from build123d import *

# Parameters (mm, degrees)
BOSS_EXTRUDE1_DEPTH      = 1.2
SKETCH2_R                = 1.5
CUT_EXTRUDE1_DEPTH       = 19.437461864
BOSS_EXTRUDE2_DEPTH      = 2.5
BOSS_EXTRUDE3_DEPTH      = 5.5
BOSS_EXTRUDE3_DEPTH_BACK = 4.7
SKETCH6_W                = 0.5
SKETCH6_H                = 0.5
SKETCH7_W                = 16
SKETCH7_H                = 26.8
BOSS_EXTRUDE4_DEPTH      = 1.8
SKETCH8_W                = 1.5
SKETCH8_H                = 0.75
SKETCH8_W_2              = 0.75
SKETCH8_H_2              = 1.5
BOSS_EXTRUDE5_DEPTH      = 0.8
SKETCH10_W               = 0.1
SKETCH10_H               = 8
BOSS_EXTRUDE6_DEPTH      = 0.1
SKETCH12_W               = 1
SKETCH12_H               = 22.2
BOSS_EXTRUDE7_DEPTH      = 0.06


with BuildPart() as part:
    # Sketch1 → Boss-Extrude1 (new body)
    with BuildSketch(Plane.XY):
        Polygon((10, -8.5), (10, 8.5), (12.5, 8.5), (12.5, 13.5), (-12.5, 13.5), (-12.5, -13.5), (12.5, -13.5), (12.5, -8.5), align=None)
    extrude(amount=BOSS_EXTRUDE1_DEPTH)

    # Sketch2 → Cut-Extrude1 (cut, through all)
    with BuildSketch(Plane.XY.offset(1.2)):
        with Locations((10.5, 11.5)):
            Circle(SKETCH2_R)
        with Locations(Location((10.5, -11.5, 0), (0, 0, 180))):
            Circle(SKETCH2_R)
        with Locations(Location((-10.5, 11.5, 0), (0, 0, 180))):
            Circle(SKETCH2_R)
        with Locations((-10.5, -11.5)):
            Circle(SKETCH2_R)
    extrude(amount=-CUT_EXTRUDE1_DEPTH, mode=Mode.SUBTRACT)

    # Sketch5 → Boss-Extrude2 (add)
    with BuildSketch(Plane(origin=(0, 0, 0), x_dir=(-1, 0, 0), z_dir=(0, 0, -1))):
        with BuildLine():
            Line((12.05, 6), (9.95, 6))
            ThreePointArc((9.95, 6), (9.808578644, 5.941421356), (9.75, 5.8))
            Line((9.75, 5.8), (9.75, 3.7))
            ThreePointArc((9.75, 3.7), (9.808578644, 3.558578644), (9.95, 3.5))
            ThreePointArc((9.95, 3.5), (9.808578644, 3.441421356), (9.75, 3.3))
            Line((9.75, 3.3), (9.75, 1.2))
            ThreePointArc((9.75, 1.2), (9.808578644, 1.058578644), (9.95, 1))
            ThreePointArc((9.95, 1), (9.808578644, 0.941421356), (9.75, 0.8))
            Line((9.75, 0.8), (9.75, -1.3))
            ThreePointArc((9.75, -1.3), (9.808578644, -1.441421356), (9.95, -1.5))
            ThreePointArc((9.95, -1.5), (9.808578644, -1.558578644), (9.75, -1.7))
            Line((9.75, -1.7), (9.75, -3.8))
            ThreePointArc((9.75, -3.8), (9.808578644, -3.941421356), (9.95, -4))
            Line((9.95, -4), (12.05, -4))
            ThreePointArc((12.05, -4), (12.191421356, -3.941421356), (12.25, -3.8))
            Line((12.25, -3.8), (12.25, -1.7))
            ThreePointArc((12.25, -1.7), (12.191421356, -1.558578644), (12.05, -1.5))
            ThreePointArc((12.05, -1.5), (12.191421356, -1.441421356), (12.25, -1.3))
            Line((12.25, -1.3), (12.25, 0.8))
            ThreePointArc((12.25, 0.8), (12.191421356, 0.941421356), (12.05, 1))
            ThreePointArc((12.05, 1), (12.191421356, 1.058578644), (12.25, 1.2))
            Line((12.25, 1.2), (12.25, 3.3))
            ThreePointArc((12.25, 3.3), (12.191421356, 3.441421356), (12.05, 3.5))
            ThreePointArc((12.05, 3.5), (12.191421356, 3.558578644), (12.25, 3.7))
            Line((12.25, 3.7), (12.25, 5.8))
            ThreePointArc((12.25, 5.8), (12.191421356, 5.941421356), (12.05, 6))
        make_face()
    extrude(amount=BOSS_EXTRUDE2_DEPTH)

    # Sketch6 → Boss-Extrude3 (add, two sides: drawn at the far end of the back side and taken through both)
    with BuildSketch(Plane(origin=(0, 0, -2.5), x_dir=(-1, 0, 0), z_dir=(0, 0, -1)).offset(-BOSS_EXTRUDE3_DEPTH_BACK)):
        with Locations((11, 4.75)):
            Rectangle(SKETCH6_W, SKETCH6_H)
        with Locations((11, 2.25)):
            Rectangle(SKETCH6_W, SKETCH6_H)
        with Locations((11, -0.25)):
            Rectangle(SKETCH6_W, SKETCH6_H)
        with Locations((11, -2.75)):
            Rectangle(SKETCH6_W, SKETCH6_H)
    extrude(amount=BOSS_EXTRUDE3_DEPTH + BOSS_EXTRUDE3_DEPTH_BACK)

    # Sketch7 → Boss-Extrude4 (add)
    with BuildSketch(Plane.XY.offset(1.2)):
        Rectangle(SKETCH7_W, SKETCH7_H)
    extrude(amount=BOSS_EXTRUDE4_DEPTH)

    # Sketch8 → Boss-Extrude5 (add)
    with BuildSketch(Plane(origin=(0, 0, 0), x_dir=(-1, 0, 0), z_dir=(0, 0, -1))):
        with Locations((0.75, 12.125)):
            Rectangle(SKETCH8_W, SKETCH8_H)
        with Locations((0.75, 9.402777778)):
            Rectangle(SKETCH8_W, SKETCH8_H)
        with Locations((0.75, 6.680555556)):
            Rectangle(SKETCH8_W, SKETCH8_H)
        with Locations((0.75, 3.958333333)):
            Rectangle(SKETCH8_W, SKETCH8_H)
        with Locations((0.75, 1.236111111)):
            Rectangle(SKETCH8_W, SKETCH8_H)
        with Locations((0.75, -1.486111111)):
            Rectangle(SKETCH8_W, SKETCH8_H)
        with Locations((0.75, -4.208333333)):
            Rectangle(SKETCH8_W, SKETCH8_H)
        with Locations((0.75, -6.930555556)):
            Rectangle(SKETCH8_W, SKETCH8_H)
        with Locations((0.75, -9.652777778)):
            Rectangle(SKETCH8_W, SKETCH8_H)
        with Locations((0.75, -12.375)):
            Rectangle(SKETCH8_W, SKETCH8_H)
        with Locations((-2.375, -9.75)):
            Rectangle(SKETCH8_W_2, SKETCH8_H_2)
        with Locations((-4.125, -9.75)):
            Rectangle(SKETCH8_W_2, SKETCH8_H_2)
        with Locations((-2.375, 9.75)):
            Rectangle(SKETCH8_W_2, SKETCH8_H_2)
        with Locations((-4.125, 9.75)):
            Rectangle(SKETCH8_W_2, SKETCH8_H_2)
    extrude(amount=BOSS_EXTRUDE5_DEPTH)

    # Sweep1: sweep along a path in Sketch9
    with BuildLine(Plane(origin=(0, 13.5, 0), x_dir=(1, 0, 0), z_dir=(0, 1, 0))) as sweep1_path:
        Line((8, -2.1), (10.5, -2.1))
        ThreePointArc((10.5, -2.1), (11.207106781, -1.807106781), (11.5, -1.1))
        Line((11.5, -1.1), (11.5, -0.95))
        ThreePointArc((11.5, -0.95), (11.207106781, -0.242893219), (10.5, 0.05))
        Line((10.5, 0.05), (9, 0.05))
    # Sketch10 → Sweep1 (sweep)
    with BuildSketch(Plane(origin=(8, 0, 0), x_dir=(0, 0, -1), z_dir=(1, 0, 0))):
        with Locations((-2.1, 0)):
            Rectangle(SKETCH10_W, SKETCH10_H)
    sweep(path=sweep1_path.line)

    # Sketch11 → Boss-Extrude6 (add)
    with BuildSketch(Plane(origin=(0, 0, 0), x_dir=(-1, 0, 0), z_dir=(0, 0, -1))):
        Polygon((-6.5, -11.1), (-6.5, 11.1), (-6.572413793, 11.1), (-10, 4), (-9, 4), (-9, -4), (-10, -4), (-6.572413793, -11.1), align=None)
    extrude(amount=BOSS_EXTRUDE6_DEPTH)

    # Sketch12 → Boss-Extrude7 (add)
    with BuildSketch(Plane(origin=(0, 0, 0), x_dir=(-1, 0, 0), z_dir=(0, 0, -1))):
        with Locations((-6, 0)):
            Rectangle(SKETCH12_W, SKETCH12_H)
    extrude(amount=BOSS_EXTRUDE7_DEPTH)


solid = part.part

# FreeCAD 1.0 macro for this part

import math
import FreeCAD as App
import Part
import Sketcher

V = App.Vector
Q = App.Units.Quantity


def add_polygon(sketch, points):
    """Adds a closed chain of lines whose ends are joined by coincident constraints."""
    first, n = sketch.GeometryCount, len(points)
    for a, b in zip(points, points[1:] + points[:1]):
        sketch.addGeometry(Part.LineSegment(App.Vector(*a, 0), App.Vector(*b, 0)), False)
    for i in range(n):
        sketch.addConstraint(Sketcher.Constraint("Coincident", first + i, 2, first + (i + 1) % n, 1))

doc = App.newDocument("Part")
body = doc.addObject("PartDesign::Body", "Body")

# Sketch on XY plane
sketch1 = body.newObject("Sketcher::SketchObject", "Sketch")
sketch1.AttachmentSupport = (doc.getObject("XY_Plane"), [""])
sketch1.MapMode = "FlatFace"
add_polygon(sketch1, [(10, -8.5), (10, 8.5), (12.5, 8.5), (12.5, 13.5), (-12.5, 13.5), (-12.5, -13.5), (12.5, -13.5), (12.5, -8.5)])  # lines 0-7
sketch1.addConstraint([
    Sketcher.Constraint("Vertical", 0),
    Sketcher.Constraint("Horizontal", 1),
    Sketcher.Constraint("Vertical", 2),
    Sketcher.Constraint("Horizontal", 3),
    Sketcher.Constraint("Vertical", 4),
    Sketcher.Constraint("Horizontal", 5),
    Sketcher.Constraint("Vertical", 6),
    Sketcher.Constraint("Horizontal", 7),
    Sketcher.Constraint("Symmetric", 2, 2, 4, 2, -1, 1),
    Sketcher.Constraint("Symmetric", 1, 2, 6, 2, -1),
    Sketcher.Constraint("DistanceX", 3, 2, 3, 1, Q("25 mm")),
    Sketcher.Constraint("DistanceY", 0, 1, 0, 2, Q("17 mm")),
    Sketcher.Constraint("DistanceY", 2, 1, 2, 2, Q("5 mm")),
    Sketcher.Constraint("DistanceX", 1, 1, 1, 2, Q("2.5 mm")),
])
pad1 = body.newObject("PartDesign::Pad", "Pad")
pad1.Profile = sketch1
pad1.Length = 1.2

# Sketch on XY plane
sketch2 = body.newObject("Sketcher::SketchObject", "Sketch001")
sketch2.AttachmentSupport = (doc.getObject("XY_Plane"), [""])
sketch2.MapMode = "FlatFace"
sketch2.AttachmentOffset = App.Placement(V(0, 0, 1.2), App.Rotation())
sketch2.addGeometry([
    Part.Circle(V(10.5, 11.5, 0), V(0, 0, 1), 1.5),
    Part.Circle(V(10.5, -11.5, 0), V(0, 0, 1), 1.5),
    Part.Circle(V(-10.5, 11.5, 0), V(0, 0, 1), 1.5),
    Part.Circle(V(-10.5, -11.5, 0), V(0, 0, 1), 1.5),
], False)
sketch2.addConstraint([
    Sketcher.Constraint("Equal", 0, 1),
    Sketcher.Constraint("Equal", 1, 2),
    Sketcher.Constraint("Equal", 2, 3),
    Sketcher.Constraint("Symmetric", 1, 3, 2, 3, -1, 1),
    Sketcher.Constraint("Symmetric", 0, 3, 3, 3, -1, 1),
    Sketcher.Constraint("Symmetric", 0, 3, 2, 3, -2),
    Sketcher.Constraint("Diameter", 0, Q("3 mm")),
    Sketcher.Constraint("DistanceY", 1, 3, 0, 3, Q("23 mm")),
    Sketcher.Constraint("DistanceX", 2, 3, 0, 3, Q("21 mm")),
])
pocket1 = body.newObject("PartDesign::Pocket", "Pocket")
pocket1.Profile = sketch2
pocket1.Type = "ThroughAll"

# Sketch on XY plane
sketch3 = body.newObject("Sketcher::SketchObject", "Sketch002")
sketch3.AttachmentSupport = (doc.getObject("XY_Plane"), [""])
sketch3.MapMode = "FlatFace"
sketch3.addGeometry([
    Part.LineSegment(V(-12.05, 6, 0), V(-9.95, 6, 0)),  # 0
    Part.ArcOfCircle(Part.Circle(V(-9.95, 5.8, 0), V(0, 0, 1), 0.2), math.radians(0), math.radians(90)),  # 1
    Part.LineSegment(V(-9.75, 5.8, 0), V(-9.75, 3.7, 0)),  # 2
    Part.ArcOfCircle(Part.Circle(V(-9.95, 3.7, 0), V(0, 0, 1), 0.2), math.radians(-90), math.radians(0)),  # 3
    Part.ArcOfCircle(Part.Circle(V(-9.95, 3.3, 0), V(0, 0, 1), 0.2), math.radians(0), math.radians(90)),  # 4
    Part.LineSegment(V(-9.75, 3.3, 0), V(-9.75, 1.2, 0)),  # 5
    Part.ArcOfCircle(Part.Circle(V(-9.95, 1.2, 0), V(0, 0, 1), 0.2), math.radians(-90), math.radians(0)),  # 6
    Part.ArcOfCircle(Part.Circle(V(-9.95, 0.8, 0), V(0, 0, 1), 0.2), math.radians(0), math.radians(90)),  # 7
    Part.LineSegment(V(-9.75, 0.8, 0), V(-9.75, -1.3, 0)),  # 8
    Part.ArcOfCircle(Part.Circle(V(-9.95, -1.3, 0), V(0, 0, 1), 0.2), math.radians(-90), math.radians(0)),  # 9
    Part.ArcOfCircle(Part.Circle(V(-9.95, -1.7, 0), V(0, 0, 1), 0.2), math.radians(0), math.radians(90)),  # 10
    Part.LineSegment(V(-9.75, -1.7, 0), V(-9.75, -3.8, 0)),  # 11
    Part.ArcOfCircle(Part.Circle(V(-9.95, -3.8, 0), V(0, 0, 1), 0.2), math.radians(-90), math.radians(0)),  # 12
    Part.LineSegment(V(-9.95, -4, 0), V(-12.05, -4, 0)),  # 13
    Part.ArcOfCircle(Part.Circle(V(-12.05, -3.8, 0), V(0, 0, 1), 0.2), math.radians(-180), math.radians(-90)),  # 14
    Part.LineSegment(V(-12.25, -3.8, 0), V(-12.25, -1.7, 0)),  # 15
    Part.ArcOfCircle(Part.Circle(V(-12.05, -1.7, 0), V(0, 0, 1), 0.2), math.radians(90), math.radians(180)),  # 16
    Part.ArcOfCircle(Part.Circle(V(-12.05, -1.3, 0), V(0, 0, 1), 0.2), math.radians(-180), math.radians(-90)),  # 17
    Part.LineSegment(V(-12.25, -1.3, 0), V(-12.25, 0.8, 0)),  # 18
    Part.ArcOfCircle(Part.Circle(V(-12.05, 0.8, 0), V(0, 0, 1), 0.2), math.radians(90), math.radians(180)),  # 19
    Part.ArcOfCircle(Part.Circle(V(-12.05, 1.2, 0), V(0, 0, 1), 0.2), math.radians(-180), math.radians(-90)),  # 20
    Part.LineSegment(V(-12.25, 1.2, 0), V(-12.25, 3.3, 0)),  # 21
    Part.ArcOfCircle(Part.Circle(V(-12.05, 3.3, 0), V(0, 0, 1), 0.2), math.radians(90), math.radians(180)),  # 22
    Part.ArcOfCircle(Part.Circle(V(-12.05, 3.7, 0), V(0, 0, 1), 0.2), math.radians(-180), math.radians(-90)),  # 23
    Part.LineSegment(V(-12.25, 3.7, 0), V(-12.25, 5.8, 0)),  # 24
    Part.ArcOfCircle(Part.Circle(V(-12.05, 5.8, 0), V(0, 0, 1), 0.2), math.radians(90), math.radians(180)),  # 25
], False)
sketch3.addConstraint([
    Sketcher.Constraint("Tangent", 0, 2, 1, 2),
    Sketcher.Constraint("Tangent", 1, 1, 2, 1),
    Sketcher.Constraint("Tangent", 2, 2, 3, 2),
    Sketcher.Constraint("Tangent", 3, 1, 4, 2),
    Sketcher.Constraint("Tangent", 4, 1, 5, 1),
    Sketcher.Constraint("Tangent", 5, 2, 6, 2),
    Sketcher.Constraint("Tangent", 6, 1, 7, 2),
    Sketcher.Constraint("Tangent", 7, 1, 8, 1),
    Sketcher.Constraint("Tangent", 8, 2, 9, 2),
    Sketcher.Constraint("Tangent", 9, 1, 10, 2),
    Sketcher.Constraint("Tangent", 10, 1, 11, 1),
    Sketcher.Constraint("Tangent", 11, 2, 12, 2),
    Sketcher.Constraint("Tangent", 12, 1, 13, 1),
    Sketcher.Constraint("Tangent", 13, 2, 14, 2),
    Sketcher.Constraint("Tangent", 14, 1, 15, 1),
    Sketcher.Constraint("Tangent", 15, 2, 16, 2),
    Sketcher.Constraint("Tangent", 16, 1, 17, 2),
    Sketcher.Constraint("Tangent", 17, 1, 18, 1),
    Sketcher.Constraint("Tangent", 18, 2, 19, 2),
    Sketcher.Constraint("Tangent", 19, 1, 20, 2),
    Sketcher.Constraint("Tangent", 20, 1, 21, 1),
    Sketcher.Constraint("Tangent", 21, 2, 22, 2),
    Sketcher.Constraint("Tangent", 22, 1, 23, 2),
    Sketcher.Constraint("Tangent", 23, 1, 24, 1),
    Sketcher.Constraint("Tangent", 24, 2, 25, 2),
    Sketcher.Constraint("Tangent", 25, 1, 0, 1),
    Sketcher.Constraint("Horizontal", 0),
    Sketcher.Constraint("Vertical", 2),
    Sketcher.Constraint("Vertical", 5),
    Sketcher.Constraint("Vertical", 8),
    Sketcher.Constraint("Vertical", 11),
    Sketcher.Constraint("Horizontal", 13),
    Sketcher.Constraint("Vertical", 15),
    Sketcher.Constraint("Vertical", 18),
    Sketcher.Constraint("Vertical", 21),
    Sketcher.Constraint("Vertical", 24),
    Sketcher.Constraint("Equal", 1, 3),
    Sketcher.Constraint("Equal", 3, 4),
    Sketcher.Constraint("Equal", 4, 6),
    Sketcher.Constraint("Equal", 6, 7),
    Sketcher.Constraint("Equal", 7, 9),
    Sketcher.Constraint("Equal", 9, 10),
    Sketcher.Constraint("Equal", 10, 12),
    Sketcher.Constraint("Equal", 12, 14),
    Sketcher.Constraint("Equal", 14, 16),
    Sketcher.Constraint("Equal", 16, 17),
    Sketcher.Constraint("Equal", 17, 19),
    Sketcher.Constraint("Equal", 19, 20),
    Sketcher.Constraint("Equal", 20, 22),
    Sketcher.Constraint("Equal", 22, 23),
    Sketcher.Constraint("Equal", 23, 25),
    Sketcher.Constraint("Horizontal", 10, 3, 16, 3),
    Sketcher.Constraint("Horizontal", 7, 3, 19, 3),
    Sketcher.Constraint("Horizontal", 4, 3, 22, 3),
    Sketcher.Constraint("Vertical", 3, 3, 4, 3),
    Sketcher.Constraint("Vertical", 6, 3, 7, 3),
    Sketcher.Constraint("Vertical", 9, 3, 10, 3),
    Sketcher.Constraint("Vertical", 16, 3, 17, 3),
    Sketcher.Constraint("Vertical", 19, 3, 20, 3),
    Sketcher.Constraint("Vertical", 22, 3, 23, 3),
    Sketcher.Constraint("Equal", 13, 2),
    Sketcher.Constraint("Equal", 2, 5),
    Sketcher.Constraint("Equal", 5, 8),
    Sketcher.Constraint("Equal", 8, 11),
    Sketcher.Constraint("Radius", 1, Q("0.2 mm")),
    Sketcher.Constraint("DistanceX", 0, 1, 0, 2, Q("2.1 mm")),
    Sketcher.Constraint("DistanceY", -1, 1, 0, 2, Q("6 mm")),
    Sketcher.Constraint("DistanceX", 1, 3, -1, 1, Q("9.95 mm")),
])
pad2 = body.newObject("PartDesign::Pad", "Pad001")
pad2.Profile = sketch3
pad2.Length = 2.5
pad2.Reversed = True

# Sketch on XY plane
sketch4 = body.newObject("Sketcher::SketchObject", "Sketch003")
sketch4.AttachmentSupport = (doc.getObject("XY_Plane"), [""])
sketch4.MapMode = "FlatFace"
sketch4.AttachmentOffset = App.Placement(V(0, 0, -2.5), App.Rotation())
add_polygon(sketch4, [(-10.8, 5), (-10.8, 4.5), (-11.2, 4.5), (-11.2, 5)])  # lines 0-3
add_polygon(sketch4, [(-10.8, 2.5), (-10.8, 2), (-11.2, 2), (-11.2, 2.5)])  # lines 4-7
add_polygon(sketch4, [(-10.8, 0), (-10.8, -0.5), (-11.2, -0.5), (-11.2, 0)])  # lines 8-11
add_polygon(sketch4, [(-10.8, -2.5), (-10.8, -3), (-11.2, -3), (-11.2, -2.5)])  # lines 12-15
sketch4.addConstraint([
    Sketcher.Constraint("Vertical", 0),
    Sketcher.Constraint("Horizontal", 1),
    Sketcher.Constraint("Vertical", 2),
    Sketcher.Constraint("Horizontal", 3),
    Sketcher.Constraint("Vertical", 4),
    Sketcher.Constraint("Horizontal", 5),
    Sketcher.Constraint("Vertical", 6),
    Sketcher.Constraint("Horizontal", 7),
    Sketcher.Constraint("Vertical", 8),
    Sketcher.Constraint("Horizontal", 9),
    Sketcher.Constraint("Vertical", 10),
    Sketcher.Constraint("Horizontal", 11),
    Sketcher.Constraint("Vertical", 12),
    Sketcher.Constraint("Horizontal", 13),
    Sketcher.Constraint("Vertical", 14),
    Sketcher.Constraint("Horizontal", 15),
    Sketcher.Constraint("Symmetric", 6, 2, 14, 2, -1),
    Sketcher.Constraint("PointOnObject", 10, 2, -1),
    Sketcher.Constraint("Vertical", 3, 2, 4, 2),
    Sketcher.Constraint("Vertical", 2, 2, 5, 2),
    Sketcher.Constraint("Vertical", 7, 2, 8, 2),
    Sketcher.Constraint("Vertical", 6, 2, 9, 2),
    Sketcher.Constraint("Vertical", 11, 2, 12, 2),
    Sketcher.Constraint("Equal", 15, 0),
    Sketcher.Constraint("Equal", 2, 4),
    Sketcher.Constraint("Equal", 6, 8),
    Sketcher.Constraint("Equal", 10, 12),
    Sketcher.Constraint("DistanceX", 1, 2, 1, 1, Q("0.5 mm")),
    Sketcher.Constraint("DistanceY", -1, 1, 2, 2, Q("5 mm")),
    Sketcher.Constraint("DistanceY", -1, 1, 4, 2, Q("2 mm")),
    Sketcher.Constraint("DistanceX", 0, 2, -1, 1, Q("10.75 mm")),
])
pad3 = body.newObject("PartDesign::Pad", "Pad002")
pad3.Profile = sketch4
pad3.Type = "TwoLengths"
pad3.Length = 5.5
pad3.Length2 = 4.7
pad3.Reversed = True

# Sketch on XY plane
sketch5 = body.newObject("Sketcher::SketchObject", "Sketch004")
sketch5.AttachmentSupport = (doc.getObject("XY_Plane"), [""])
sketch5.MapMode = "FlatFace"
sketch5.AttachmentOffset = App.Placement(V(0, 0, 1.2), App.Rotation())
add_polygon(sketch5, [(-8, 13), (-8, -13), (8, -13), (8, 13)])  # lines 0-3
sketch5.addConstraint([
    Sketcher.Constraint("Vertical", 0),
    Sketcher.Constraint("Horizontal", 1),
    Sketcher.Constraint("Vertical", 2),
    Sketcher.Constraint("Horizontal", 3),
    Sketcher.Constraint("Symmetric", 0, 2, 2, 2, -1, 1),
    Sketcher.Constraint("DistanceX", 1, 1, 1, 2, Q("16 mm")),
    Sketcher.Constraint("DistanceY", 0, 2, 0, 1, Q("26.8 mm")),
])
pad4 = body.newObject("PartDesign::Pad", "Pad003")
pad4.Profile = sketch5
pad4.Length = 1.8

# Sketch on XY plane
sketch6 = body.newObject("Sketcher::SketchObject", "Sketch005")
sketch6.AttachmentSupport = (doc.getObject("XY_Plane"), [""])
sketch6.MapMode = "FlatFace"
add_polygon(sketch6, [(0, 12.5), (0, 11.8), (-1.5, 11.8), (-1.5, 12.5)])  # lines 0-3
add_polygon(sketch6, [(0, 9.8), (0, 9), (-1.5, 9), (-1.5, 9.8)])  # lines 4-7
add_polygon(sketch6, [(0, 7.1), (0, 6.3), (-1.5, 6.3), (-1.5, 7.1)])  # lines 8-11
add_polygon(sketch6, [(0, 4.3), (0, 3.6), (-1.5, 3.6), (-1.5, 4.3)])  # lines 12-15
add_polygon(sketch6, [(0, 1.6), (0, 0.9), (-1.5, 0.9), (-1.5, 1.6)])  # lines 16-19
add_polygon(sketch6, [(0, -1.1), (0, -1.9), (-1.5, -1.9), (-1.5, -1.1)])  # lines 20-23
add_polygon(sketch6, [(0, -3.8), (0, -4.6), (-1.5, -4.6), (-1.5, -3.8)])  # lines 24-27
add_polygon(sketch6, [(0, -6.6), (0, -7.3), (-1.5, -7.3), (-1.5, -6.6)])  # lines 28-31
add_polygon(sketch6, [(0, -9.3), (0, -10), (-1.5, -10), (-1.5, -9.3)])  # lines 32-35
add_polygon(sketch6, [(0, -12), (0, -12.8), (-1.5, -12.8), (-1.5, -12)])  # lines 36-39
add_polygon(sketch6, [(2.8, -9), (2.8, -10.5), (2, -10.5), (2, -9)])  # lines 40-43
add_polygon(sketch6, [(4.5, -9), (4.5, -10.5), (3.8, -10.5), (3.8, -9)])  # lines 44-47
add_polygon(sketch6, [(2.8, 10.5), (2.8, 9), (2, 9), (2, 10.5)])  # lines 48-51
add_polygon(sketch6, [(4.5, 10.5), (4.5, 9), (3.8, 9), (3.8, 10.5)])  # lines 52-55
sketch6.addConstraint([
    Sketcher.Constraint("Vertical", 0),
    Sketcher.Constraint("Horizontal", 1),
    Sketcher.Constraint("Vertical", 2),
    Sketcher.Constraint("Horizontal", 3),
    Sketcher.Constraint("Vertical", 4),
    Sketcher.Constraint("Horizontal", 5),
    Sketcher.Constraint("Vertical", 6),
    Sketcher.Constraint("Horizontal", 7),
    Sketcher.Constraint("Vertical", 8),
    Sketcher.Constraint("Horizontal", 9),
    Sketcher.Constraint("Vertical", 10),
    Sketcher.Constraint("Horizontal", 11),
    Sketcher.Constraint("Vertical", 12),
    Sketcher.Constraint("Horizontal", 13),
    Sketcher.Constraint("Vertical", 14),
    Sketcher.Constraint("Horizontal", 15),
    Sketcher.Constraint("Vertical", 16),
    Sketcher.Constraint("Horizontal", 17),
    Sketcher.Constraint("Vertical", 18),
    Sketcher.Constraint("Horizontal", 19),
    Sketcher.Constraint("Vertical", 20),
    Sketcher.Constraint("Horizontal", 21),
    Sketcher.Constraint("Vertical", 22),
    Sketcher.Constraint("Horizontal", 23),
    Sketcher.Constraint("Vertical", 24),
    Sketcher.Constraint("Horizontal", 25),
    Sketcher.Constraint("Vertical", 26),
    Sketcher.Constraint("Horizontal", 27),
    Sketcher.Constraint("Vertical", 28),
    Sketcher.Constraint("Horizontal", 29),
    Sketcher.Constraint("Vertical", 30),
    Sketcher.Constraint("Horizontal", 31),
    Sketcher.Constraint("Vertical", 32),
    Sketcher.Constraint("Horizontal", 33),
    Sketcher.Constraint("Vertical", 34),
    Sketcher.Constraint("Horizontal", 35),
    Sketcher.Constraint("Vertical", 36),
    Sketcher.Constraint("Horizontal", 37),
    Sketcher.Constraint("Vertical", 38),
    Sketcher.Constraint("Horizontal", 39),
    Sketcher.Constraint("Vertical", 40),
    Sketcher.Constraint("Horizontal", 41),
    Sketcher.Constraint("Vertical", 42),
    Sketcher.Constraint("Horizontal", 43),
    Sketcher.Constraint("Vertical", 44),
    Sketcher.Constraint("Horizontal", 45),
    Sketcher.Constraint("Vertical", 46),
    Sketcher.Constraint("Horizontal", 47),
    Sketcher.Constraint("Vertical", 48),
    Sketcher.Constraint("Horizontal", 49),
    Sketcher.Constraint("Vertical", 50),
    Sketcher.Constraint("Horizontal", 51),
    Sketcher.Constraint("Vertical", 52),
    Sketcher.Constraint("Horizontal", 53),
    Sketcher.Constraint("Vertical", 54),
    Sketcher.Constraint("Horizontal", 55),
    Sketcher.Constraint("Symmetric", 43, 2, 48, 2, -1),
    Sketcher.Constraint("Symmetric", 41, 2, 50, 2, -1),
    Sketcher.Constraint("Symmetric", 47, 2, 52, 2, -1),
    Sketcher.Constraint("Symmetric", 45, 2, 54, 2, -1),
    Sketcher.Constraint("PointOnObject", 0, 2, -2),
    Sketcher.Constraint("PointOnObject", 4, 2, -2),
    Sketcher.Constraint("PointOnObject", 8, 2, -2),
    Sketcher.Constraint("PointOnObject", 12, 2, -2),
    Sketcher.Constraint("PointOnObject", 16, 2, -2),
    Sketcher.Constraint("PointOnObject", 20, 2, -2),
    Sketcher.Constraint("PointOnObject", 24, 2, -2),
    Sketcher.Constraint("PointOnObject", 28, 2, -2),
    Sketcher.Constraint("PointOnObject", 32, 2, -2),
    Sketcher.Constraint("PointOnObject", 36, 2, -2),
    Sketcher.Constraint("Horizontal", 41, 2, 44, 2),
    Sketcher.Constraint("Horizontal", 43, 2, 46, 2),
    Sketcher.Constraint("Vertical", 2, 2, 5, 2),
    Sketcher.Constraint("Vertical", 6, 2, 9, 2),
    Sketcher.Constraint("Vertical", 10, 2, 13, 2),
    Sketcher.Constraint("Vertical", 14, 2, 17, 2),
    Sketcher.Constraint("Vertical", 18, 2, 21, 2),
    Sketcher.Constraint("Vertical", 22, 2, 25, 2),
    Sketcher.Constraint("Vertical", 26, 2, 29, 2),
    Sketcher.Constraint("Vertical", 30, 2, 33, 2),
    Sketcher.Constraint("Vertical", 34, 2, 37, 2),
    Sketcher.Constraint("Equal", 43, 45),
    Sketcher.Constraint("Equal", 55, 0),
    Sketcher.Constraint("Equal", 2, 4),
    Sketcher.Constraint("Equal", 6, 8),
    Sketcher.Constraint("Equal", 10, 12),
    Sketcher.Constraint("Equal", 14, 16),
    Sketcher.Constraint("Equal", 18, 20),
    Sketcher.Constraint("Equal", 22, 24),
    Sketcher.Constraint("Equal", 26, 28),
    Sketcher.Constraint("Equal", 30, 32),
    Sketcher.Constraint("Equal", 34, 36),
    Sketcher.Constraint("Equal", 39, 40),
    Sketcher.Constraint("DistanceX", 1, 2, 1, 1, Q("1.5 mm")),
    Sketcher.Constraint("DistanceY", 38, 2, -1, 1, Q("12 mm")),
    Sketcher.Constraint("DistanceX", -1, 1, 41, 2, Q("2 mm")),
    Sketcher.Constraint("DistanceY", 42, 2, -1, 1, Q("9 mm")),
    Sketcher.Constraint("DistanceX", 40, 2, 45, 2, Q("1 mm")),
    Sketcher.Constraint("DistanceX", 41, 2, 41, 1, Q("0.75 mm")),
    Sketcher.Constraint("DistanceY", -1, 1, 2, 2, Q("12.5 mm")),
    Sketcher.Constraint("DistanceY", -1, 1, 16, 2, Q("0.861111 mm")),
    Sketcher.Constraint("DistanceY", 20, 2, -1, 1, Q("1.861111 mm")),
    Sketcher.Constraint("DistanceY", -1, 1, 4, 2, Q("9.027778 mm")),
    Sketcher.Constraint("DistanceY", -1, 1, 8, 2, Q("6.305556 mm")),
    Sketcher.Constraint("DistanceY", -1, 1, 12, 2, Q("3.583333 mm")),
    Sketcher.Constraint("DistanceY", 24, 2, -1, 1, Q("4.583333 mm")),
    Sketcher.Constraint("DistanceY", 28, 2, -1, 1, Q("7.305556 mm")),
    Sketcher.Constraint("DistanceY", 32, 2, -1, 1, Q("10.027778 mm")),
])
pad5 = body.newObject("PartDesign::Pad", "Pad004")
pad5.Profile = sketch6
pad5.Length = 0.8
pad5.Reversed = True

# Sketch on YZ plane
sketch7 = body.newObject("Sketcher::SketchObject", "Sketch006")
sketch7.AttachmentSupport = (doc.getObject("YZ_Plane"), [""])
sketch7.MapMode = "FlatFace"
sketch7.AttachmentOffset = App.Placement(V(0, 0, 8), App.Rotation())
add_polygon(sketch7, [(4, 2.15), (-4, 2.15), (-4, 2.05), (4, 2.05)])  # lines 0-3
sketch7.addConstraint([
    Sketcher.Constraint("Horizontal", 0),
    Sketcher.Constraint("Vertical", 1),
    Sketcher.Constraint("Horizontal", 2),
    Sketcher.Constraint("Vertical", 3),
    Sketcher.Constraint("DistanceX", 0, 2, 0, 1, Q("8 mm")),
    Sketcher.Constraint("DistanceY", 1, 2, 1, 1, Q("0.1 mm")),
    Sketcher.Constraint("DistanceX", 0, 2, -1, 1, Q("4 mm")),
    Sketcher.Constraint("DistanceY", -1, 1, 0, 2, Q("2.15 mm")),
])

# Sketch on XZ plane
sketch8 = body.newObject("Sketcher::SketchObject", "Sketch007")
sketch8.AttachmentSupport = (doc.getObject("XZ_Plane"), [""])
sketch8.MapMode = "FlatFace"
sketch8.AttachmentOffset = App.Placement(V(0, 0, -13.5), App.Rotation())
sketch8.addGeometry([
    Part.LineSegment(V(8, 2.1, 0), V(10.5, 2.1, 0)),  # 0
    Part.ArcOfCircle(Part.Circle(V(10.5, 1.1, 0), V(0, 0, 1), 1), math.radians(0), math.radians(90)),  # 1
    Part.LineSegment(V(11.5, 1.1, 0), V(11.5, 0.95, 0)),  # 2
    Part.ArcOfCircle(Part.Circle(V(10.5, 0.95, 0), V(0, 0, 1), 1), math.radians(-90), math.radians(0)),  # 3
    Part.LineSegment(V(10.5, -0.05, 0), V(9, -0.05, 0)),  # 4
], False)
sketch8.addConstraint([
    Sketcher.Constraint("Tangent", 0, 2, 1, 2),
    Sketcher.Constraint("Tangent", 1, 1, 2, 1),
    Sketcher.Constraint("Tangent", 2, 2, 3, 2),
    Sketcher.Constraint("Tangent", 3, 1, 4, 1),
    Sketcher.Constraint("Horizontal", 0),
    Sketcher.Constraint("Vertical", 2),
    Sketcher.Constraint("Horizontal", 4),
    Sketcher.Constraint("Equal", 1, 3),
    Sketcher.Constraint("Radius", 1, Q("1 mm")),
    Sketcher.Constraint("DistanceX", 0, 1, 0, 2, Q("2.5 mm")),
    Sketcher.Constraint("DistanceX", 4, 2, 4, 1, Q("1.5 mm")),
    Sketcher.Constraint("DistanceX", -1, 1, 0, 1, Q("8 mm")),
    Sketcher.Constraint("DistanceY", 2, 2, 2, 1, Q("0.15 mm")),
    Sketcher.Constraint("DistanceY", -1, 1, 1, 3, Q("1.1 mm")),
])
doc.recompute()

additivepipe = body.newObject("PartDesign::AdditivePipe", "AdditivePipe")
additivepipe.Profile = sketch7
additivepipe.Spine = (sketch8, ["Edge1", "Edge2", "Edge3", "Edge4", "Edge5"])

# Sketch on XY plane
sketch9 = body.newObject("Sketcher::SketchObject", "Sketch008")
sketch9.AttachmentSupport = (doc.getObject("XY_Plane"), [""])
sketch9.MapMode = "FlatFace"
add_polygon(sketch9, [(6.5, -11.1), (6.5, 11.1), (6.57, 11.1), (10, 4), (9, 4), (9, -4), (10, -4), (6.57, -11.1)])  # lines 0-7
sketch9.addConstraint([
    Sketcher.Constraint("Vertical", 0),
    Sketcher.Constraint("Horizontal", 1),
    Sketcher.Constraint("Horizontal", 3),
    Sketcher.Constraint("Vertical", 4),
    Sketcher.Constraint("Horizontal", 5),
    Sketcher.Constraint("Horizontal", 7),
    Sketcher.Constraint("Symmetric", 2, 2, 5, 2, -1),
    Sketcher.Constraint("Symmetric", 1, 2, 6, 2, -1),
    Sketcher.Constraint("DistanceX", 3, 2, 3, 1, Q("1 mm")),
    Sketcher.Constraint("DistanceY", 4, 2, 4, 1, Q("8 mm")),
    Sketcher.Constraint("DistanceY", 0, 1, 0, 2, Q("22.2 mm")),
    Sketcher.Constraint("DistanceX", -1, 1, 2, 2, Q("10 mm")),
    Sketcher.Constraint("DistanceX", -1, 1, 0, 2, Q("6.5 mm")),
    Sketcher.Constraint("DistanceX", 1, 1, 1, 2, Q("0.072414 mm")),
])
pad6 = body.newObject("PartDesign::Pad", "Pad005")
pad6.Profile = sketch9
pad6.Length = 0.1
pad6.Reversed = True

# Sketch on XY plane
sketch10 = body.newObject("Sketcher::SketchObject", "Sketch009")
sketch10.AttachmentSupport = (doc.getObject("XY_Plane"), [""])
sketch10.MapMode = "FlatFace"
add_polygon(sketch10, [(6.5, 11.1), (6.5, -11.1), (5.5, -11.1), (5.5, 11.1)])  # lines 0-3
sketch10.addConstraint([
    Sketcher.Constraint("Vertical", 0),
    Sketcher.Constraint("Horizontal", 1),
    Sketcher.Constraint("Vertical", 2),
    Sketcher.Constraint("Horizontal", 3),
    Sketcher.Constraint("DistanceX", 1, 2, 1, 1, Q("1 mm")),
    Sketcher.Constraint("DistanceY", 0, 2, 0, 1, Q("22.2 mm")),
    Sketcher.Constraint("DistanceX", -1, 1, 0, 2, Q("6.5 mm")),
    Sketcher.Constraint("DistanceY", 0, 2, -1, 1, Q("11.1 mm")),
])
pad7 = body.newObject("PartDesign::Pad", "Pad006")
pad7.Profile = sketch10
pad7.Length = 0.06
pad7.Reversed = True

doc.recompute()
